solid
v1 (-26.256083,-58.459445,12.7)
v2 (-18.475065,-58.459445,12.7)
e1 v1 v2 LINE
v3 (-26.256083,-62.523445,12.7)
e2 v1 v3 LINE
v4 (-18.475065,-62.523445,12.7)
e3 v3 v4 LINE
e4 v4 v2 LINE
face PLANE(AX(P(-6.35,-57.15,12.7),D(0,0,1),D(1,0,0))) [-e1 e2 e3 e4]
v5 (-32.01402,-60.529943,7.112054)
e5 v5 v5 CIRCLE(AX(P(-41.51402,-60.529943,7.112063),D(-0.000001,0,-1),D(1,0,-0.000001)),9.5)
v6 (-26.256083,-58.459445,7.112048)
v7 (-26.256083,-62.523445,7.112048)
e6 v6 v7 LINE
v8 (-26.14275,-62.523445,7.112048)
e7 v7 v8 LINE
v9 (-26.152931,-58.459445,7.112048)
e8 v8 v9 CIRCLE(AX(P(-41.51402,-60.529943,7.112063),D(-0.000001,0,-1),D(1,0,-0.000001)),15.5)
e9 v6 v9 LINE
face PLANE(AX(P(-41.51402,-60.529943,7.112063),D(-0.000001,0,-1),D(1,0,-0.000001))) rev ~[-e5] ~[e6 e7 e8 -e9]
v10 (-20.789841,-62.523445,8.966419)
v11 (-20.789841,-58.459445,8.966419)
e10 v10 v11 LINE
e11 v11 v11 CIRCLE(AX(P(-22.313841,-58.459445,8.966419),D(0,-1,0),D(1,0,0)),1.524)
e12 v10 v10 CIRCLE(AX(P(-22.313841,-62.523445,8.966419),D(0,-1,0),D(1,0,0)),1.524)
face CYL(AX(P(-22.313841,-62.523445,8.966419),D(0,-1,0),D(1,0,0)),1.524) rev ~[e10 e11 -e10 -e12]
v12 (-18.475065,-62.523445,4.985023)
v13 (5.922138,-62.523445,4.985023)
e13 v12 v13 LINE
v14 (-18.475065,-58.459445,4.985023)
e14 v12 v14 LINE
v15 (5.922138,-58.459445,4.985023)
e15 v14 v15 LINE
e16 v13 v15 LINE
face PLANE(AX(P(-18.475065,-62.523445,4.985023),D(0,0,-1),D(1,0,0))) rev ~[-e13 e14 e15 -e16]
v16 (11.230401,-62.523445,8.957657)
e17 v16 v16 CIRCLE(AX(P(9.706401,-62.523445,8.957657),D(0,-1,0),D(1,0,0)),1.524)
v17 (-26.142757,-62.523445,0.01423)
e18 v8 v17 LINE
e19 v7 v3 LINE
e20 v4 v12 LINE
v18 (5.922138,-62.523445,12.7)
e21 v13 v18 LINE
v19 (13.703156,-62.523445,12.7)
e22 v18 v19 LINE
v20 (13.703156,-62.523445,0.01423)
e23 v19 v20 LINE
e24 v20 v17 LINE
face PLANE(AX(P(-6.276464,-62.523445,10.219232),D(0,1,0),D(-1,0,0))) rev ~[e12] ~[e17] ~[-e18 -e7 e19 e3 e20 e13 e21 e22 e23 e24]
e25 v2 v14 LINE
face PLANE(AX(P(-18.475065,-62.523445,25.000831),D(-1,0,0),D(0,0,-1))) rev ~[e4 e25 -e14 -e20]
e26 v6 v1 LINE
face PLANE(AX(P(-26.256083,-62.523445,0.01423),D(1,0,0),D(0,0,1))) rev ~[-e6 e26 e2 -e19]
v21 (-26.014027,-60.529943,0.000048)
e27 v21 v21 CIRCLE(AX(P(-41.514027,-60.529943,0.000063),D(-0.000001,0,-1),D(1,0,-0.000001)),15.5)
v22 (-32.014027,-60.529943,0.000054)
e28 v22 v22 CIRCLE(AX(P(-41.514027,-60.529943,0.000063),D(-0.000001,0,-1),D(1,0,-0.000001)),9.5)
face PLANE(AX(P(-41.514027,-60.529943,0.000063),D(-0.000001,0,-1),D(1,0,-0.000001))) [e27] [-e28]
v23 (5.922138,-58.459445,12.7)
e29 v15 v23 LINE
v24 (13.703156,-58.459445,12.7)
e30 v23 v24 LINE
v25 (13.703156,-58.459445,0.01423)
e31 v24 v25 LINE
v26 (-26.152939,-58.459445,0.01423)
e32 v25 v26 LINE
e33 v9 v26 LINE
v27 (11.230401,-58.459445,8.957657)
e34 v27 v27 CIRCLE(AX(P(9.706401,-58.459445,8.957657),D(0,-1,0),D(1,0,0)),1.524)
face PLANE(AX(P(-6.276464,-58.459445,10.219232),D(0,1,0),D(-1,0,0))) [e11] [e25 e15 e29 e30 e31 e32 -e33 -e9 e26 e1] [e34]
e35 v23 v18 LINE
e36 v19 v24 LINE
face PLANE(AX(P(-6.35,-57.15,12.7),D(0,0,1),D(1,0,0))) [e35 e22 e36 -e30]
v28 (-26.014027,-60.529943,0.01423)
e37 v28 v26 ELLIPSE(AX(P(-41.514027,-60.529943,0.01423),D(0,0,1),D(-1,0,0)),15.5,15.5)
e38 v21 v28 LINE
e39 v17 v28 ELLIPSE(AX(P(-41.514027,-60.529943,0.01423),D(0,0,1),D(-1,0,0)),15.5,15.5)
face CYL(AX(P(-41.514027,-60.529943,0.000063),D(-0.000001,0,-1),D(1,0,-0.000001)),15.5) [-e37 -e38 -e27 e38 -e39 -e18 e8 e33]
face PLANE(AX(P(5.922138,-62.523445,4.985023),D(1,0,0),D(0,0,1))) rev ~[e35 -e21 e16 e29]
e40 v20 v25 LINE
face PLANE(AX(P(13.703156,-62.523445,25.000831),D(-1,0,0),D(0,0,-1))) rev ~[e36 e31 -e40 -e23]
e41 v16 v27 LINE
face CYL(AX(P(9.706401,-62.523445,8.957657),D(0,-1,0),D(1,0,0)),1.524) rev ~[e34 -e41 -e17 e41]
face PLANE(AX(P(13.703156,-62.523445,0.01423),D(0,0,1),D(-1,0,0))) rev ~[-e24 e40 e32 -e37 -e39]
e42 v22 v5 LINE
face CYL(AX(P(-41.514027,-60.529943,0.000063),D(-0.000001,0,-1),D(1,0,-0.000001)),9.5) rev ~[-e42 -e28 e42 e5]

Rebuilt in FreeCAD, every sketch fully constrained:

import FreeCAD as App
import Part
import Sketcher
Q = App.Units.Quantity

doc = App.newDocument("Part")
params = doc.addObject("Spreadsheet::Sheet", "Params")
for row, (alias, value) in enumerate([
    ("sketch1_width", "2 in"),
    ("sketch1_height", "0.5 in"),
    ("pad1_length", "0.5 in"),
    ("pad2_length", "0.16 in"),
    ("sketch3_diameter", "0.12 in"),
    ("pocket1_length", "0.16 in"),
    ("pad3_length", "0.28 in"),
], start=1):
    params.set(f"A{row}", alias)
    params.set(f"B{row}", "=" + value)
    params.setAlias(f"B{row}", alias)

body = doc.addObject("PartDesign::Body", "Body")

sketch1 = body.newObject("Sketcher::SketchObject", "Sketch")
sketch1.AttachmentSupport = (doc.getObject("XY_Plane"), [""])
sketch1.MapMode = "FlatFace"
sketch1.AttachmentOffset = App.Placement(App.Vector(0, 0, 0.5 * 25.4), App.Rotation())
sketch1.addGeometry(Part.LineSegment(App.Vector(-32, -51, 0), App.Vector(-32, -64, 0)), False)
sketch1.addGeometry(Part.LineSegment(App.Vector(-32, -64, 0), App.Vector(19, -64, 0)), False)
sketch1.addGeometry(Part.LineSegment(App.Vector(19, -64, 0), App.Vector(19, -51, 0)), False)
sketch1.addGeometry(Part.LineSegment(App.Vector(19, -51, 0), App.Vector(-32, -51, 0)), False)
sketch1.addConstraint(Sketcher.Constraint("Coincident", 0, 2, 1, 1))
sketch1.addConstraint(Sketcher.Constraint("Coincident", 1, 2, 2, 1))
sketch1.addConstraint(Sketcher.Constraint("Coincident", 2, 2, 3, 1))
sketch1.addConstraint(Sketcher.Constraint("Coincident", 3, 2, 0, 1))
sketch1.addConstraint(Sketcher.Constraint("Vertical", 0))
sketch1.addConstraint(Sketcher.Constraint("Horizontal", 1))
sketch1.addConstraint(Sketcher.Constraint("Vertical", 2))
sketch1.addConstraint(Sketcher.Constraint("Horizontal", 3))
sketch1.addConstraint(Sketcher.Constraint("DistanceX", 1, 1, 1, 2, Q("2 in")))
sketch1.addConstraint(Sketcher.Constraint("DistanceY", 0, 2, 0, 1, Q("0.5 in")))
sketch1.addConstraint(Sketcher.Constraint("DistanceY", 2, 2, -1, 1, Q("2 in")))
sketch1.addConstraint(Sketcher.Constraint("DistanceX", 0, 2, -1, 1, Q("1.25 in")))
sketch1.setExpression("Constraints[8]", "Params.sketch1_width")
sketch1.setExpression("Constraints[9]", "Params.sketch1_height")
pad1 = body.newObject("PartDesign::Pad", "Pad")
pad1.Profile = sketch1
pad1.setExpression("Length", "Params.pad1_length")
body2 = doc.addObject("PartDesign::Body", "Body001")

sketch2 = body2.newObject("Sketcher::SketchObject", "Sketch001")
sketch2.AttachmentSupport = (doc.getObject("XZ_Plane001"), [""])
sketch2.MapMode = "FlatFace"
sketch2.AttachmentOffset = App.Placement(App.Vector(0, 0, 62.523445), App.Rotation())
sketch2.addGeometry(Part.LineSegment(App.Vector(-26, 25, 0), App.Vector(-26, 0, 0)), False)
sketch2.addGeometry(Part.LineSegment(App.Vector(-26, 0, 0), App.Vector(14, 0, 0)), False)
sketch2.addGeometry(Part.LineSegment(App.Vector(14, 0, 0), App.Vector(14, 25, 0)), False)
sketch2.addGeometry(Part.LineSegment(App.Vector(14, 25, 0), App.Vector(6, 25, 0)), False)
sketch2.addGeometry(Part.LineSegment(App.Vector(6, 25, 0), App.Vector(6, 5, 0)), False)
sketch2.addGeometry(Part.LineSegment(App.Vector(6, 5, 0), App.Vector(-18, 5, 0)), False)
sketch2.addGeometry(Part.LineSegment(App.Vector(-18, 5, 0), App.Vector(-18, 25, 0)), False)
sketch2.addGeometry(Part.LineSegment(App.Vector(-18, 25, 0), App.Vector(-26, 25, 0)), False)
sketch2.addConstraint(Sketcher.Constraint("Coincident", 0, 2, 1, 1))
sketch2.addConstraint(Sketcher.Constraint("Coincident", 1, 2, 2, 1))
sketch2.addConstraint(Sketcher.Constraint("Coincident", 2, 2, 3, 1))
sketch2.addConstraint(Sketcher.Constraint("Coincident", 3, 2, 4, 1))
sketch2.addConstraint(Sketcher.Constraint("Coincident", 4, 2, 5, 1))
sketch2.addConstraint(Sketcher.Constraint("Coincident", 5, 2, 6, 1))
sketch2.addConstraint(Sketcher.Constraint("Coincident", 6, 2, 7, 1))
sketch2.addConstraint(Sketcher.Constraint("Coincident", 7, 2, 0, 1))
sketch2.addConstraint(Sketcher.Constraint("Vertical", 0))
sketch2.addConstraint(Sketcher.Constraint("Horizontal", 1))
sketch2.addConstraint(Sketcher.Constraint("Vertical", 2))
sketch2.addConstraint(Sketcher.Constraint("Horizontal", 3))
sketch2.addConstraint(Sketcher.Constraint("Vertical", 4))
sketch2.addConstraint(Sketcher.Constraint("Horizontal", 5))
sketch2.addConstraint(Sketcher.Constraint("Vertical", 6))
sketch2.addConstraint(Sketcher.Constraint("Horizontal", 7))
sketch2.addConstraint(Sketcher.Constraint("Horizontal", 3, 2, 6, 2))
sketch2.addConstraint(Sketcher.Constraint("Equal", 3, 7))
sketch2.addConstraint(Sketcher.Constraint("DistanceY", 0, 2, 0, 1, Q("24.986601 mm")))
sketch2.addConstraint(Sketcher.Constraint("DistanceX", 1, 1, 1, 2, Q("39.959239 mm")))
sketch2.addConstraint(Sketcher.Constraint("DistanceY", 4, 2, 4, 1, Q("20.015808 mm")))
sketch2.addConstraint(Sketcher.Constraint("DistanceX", 3, 2, 3, 1, Q("7.781018 mm")))
sketch2.addConstraint(Sketcher.Constraint("DistanceY", -1, 1, 0, 2, Q("0.01423 mm")))
sketch2.addConstraint(Sketcher.Constraint("DistanceX", -1, 1, 3, 2, Q("5.922138 mm")))
pad2 = body2.newObject("PartDesign::Pad", "Pad001")
pad2.Profile = sketch2
pad2.setExpression("Length", "Params.pad2_length")
pad2.Reversed = True

sketch3 = body2.newObject("Sketcher::SketchObject", "Sketch002")
sketch3.AttachmentSupport = (doc.getObject("XZ_Plane001"), [""])
sketch3.MapMode = "FlatFace"
sketch3.AttachmentOffset = App.Placement(App.Vector(0, 0, 62.523445), App.Rotation())
sketch3.addGeometry(Part.Circle(App.Vector(-22.3, 9, 0), App.Vector(0, 0, 1), 1.5), False)
sketch3.addGeometry(Part.Circle(App.Vector(9.7, 9, 0), App.Vector(0, 0, 1), 1.5), False)
sketch3.addGeometry(Part.LineSegment(App.Vector(-20.4, 21, 0), App.Vector(-21.2, 22.6, 0)), False)
sketch3.addGeometry(Part.LineSegment(App.Vector(-21.2, 22.6, 0), App.Vector(-22.9, 23, 0)), False)
sketch3.addGeometry(Part.LineSegment(App.Vector(-22.9, 23, 0), App.Vector(-24.3, 21.9, 0)), False)
sketch3.addGeometry(Part.LineSegment(App.Vector(-24.3, 21.9, 0), App.Vector(-24.3, 20.1, 0)), False)
sketch3.addGeometry(Part.LineSegment(App.Vector(-24.3, 20.1, 0), App.Vector(-22.9, 19, 0)), False)
sketch3.addGeometry(Part.LineSegment(App.Vector(-22.9, 19, 0), App.Vector(-21.2, 19.4, 0)), False)
sketch3.addGeometry(Part.LineSegment(App.Vector(-21.2, 19.4, 0), App.Vector(-20.4, 21, 0)), False)
sketch3.addGeometry(Part.LineSegment(App.Vector(11.6, 21, 0), App.Vector(10.8, 22.6, 0)), False)
sketch3.addGeometry(Part.LineSegment(App.Vector(10.8, 22.6, 0), App.Vector(9.1, 23, 0)), False)
sketch3.addGeometry(Part.LineSegment(App.Vector(9.1, 23, 0), App.Vector(7.7, 21.9, 0)), False)
sketch3.addGeometry(Part.LineSegment(App.Vector(7.7, 21.9, 0), App.Vector(7.7, 20.1, 0)), False)
sketch3.addGeometry(Part.LineSegment(App.Vector(7.7, 20.1, 0), App.Vector(9.1, 19, 0)), False)
sketch3.addGeometry(Part.LineSegment(App.Vector(9.1, 19, 0), App.Vector(10.8, 19.4, 0)), False)
sketch3.addGeometry(Part.LineSegment(App.Vector(10.8, 19.4, 0), App.Vector(11.6, 21, 0)), False)
sketch3.addConstraint(Sketcher.Constraint("Coincident", 2, 2, 3, 1))
sketch3.addConstraint(Sketcher.Constraint("Coincident", 3, 2, 4, 1))
sketch3.addConstraint(Sketcher.Constraint("Coincident", 4, 2, 5, 1))
sketch3.addConstraint(Sketcher.Constraint("Coincident", 5, 2, 6, 1))
sketch3.addConstraint(Sketcher.Constraint("Coincident", 6, 2, 7, 1))
sketch3.addConstraint(Sketcher.Constraint("Coincident", 7, 2, 8, 1))
sketch3.addConstraint(Sketcher.Constraint("Coincident", 8, 2, 2, 1))
sketch3.addConstraint(Sketcher.Constraint("Coincident", 9, 2, 10, 1))
sketch3.addConstraint(Sketcher.Constraint("Coincident", 10, 2, 11, 1))
sketch3.addConstraint(Sketcher.Constraint("Coincident", 11, 2, 12, 1))
sketch3.addConstraint(Sketcher.Constraint("Coincident", 12, 2, 13, 1))
sketch3.addConstraint(Sketcher.Constraint("Coincident", 13, 2, 14, 1))
sketch3.addConstraint(Sketcher.Constraint("Coincident", 14, 2, 15, 1))
sketch3.addConstraint(Sketcher.Constraint("Coincident", 15, 2, 9, 1))
sketch3.addConstraint(Sketcher.Constraint("Vertical", 5))
sketch3.addConstraint(Sketcher.Constraint("Vertical", 12))
sketch3.addConstraint(Sketcher.Constraint("Equal", 0, 1))
sketch3.addConstraint(Sketcher.Constraint("Parallel", 2, 9))
sketch3.addConstraint(Sketcher.Constraint("Parallel", 3, 10))
sketch3.addConstraint(Sketcher.Constraint("Parallel", 4, 11))
sketch3.addConstraint(Sketcher.Constraint("Parallel", 6, 13))
sketch3.addConstraint(Sketcher.Constraint("Parallel", 7, 14))
sketch3.addConstraint(Sketcher.Constraint("Parallel", 8, 15))
sketch3.addConstraint(Sketcher.Constraint("Equal", 2, 3))
sketch3.addConstraint(Sketcher.Constraint("Equal", 3, 4))
sketch3.addConstraint(Sketcher.Constraint("Equal", 4, 6))
sketch3.addConstraint(Sketcher.Constraint("Equal", 6, 7))
sketch3.addConstraint(Sketcher.Constraint("Equal", 7, 8))
sketch3.addConstraint(Sketcher.Constraint("Equal", 9, 10))
sketch3.addConstraint(Sketcher.Constraint("Equal", 10, 11))
sketch3.addConstraint(Sketcher.Constraint("Equal", 11, 13))
sketch3.addConstraint(Sketcher.Constraint("Equal", 13, 14))
sketch3.addConstraint(Sketcher.Constraint("Diameter", 0, Q("0.12 in")))
sketch3.addConstraint(Sketcher.Constraint("DistanceY", 1, 3, 10, 2, Q("0.5512998 in")))
sketch3.addConstraint(Sketcher.Constraint("DistanceY", 12, 2, 12, 1, Q("1.758751 mm")))
sketch3.addConstraint(Sketcher.Constraint("DistanceX", -1, 1, 1, 3, Q("9.706401 mm")))
sketch3.addConstraint(Sketcher.Constraint("DistanceY", 0, 3, 3, 2, Q("13.9986 mm")))
sketch3.addConstraint(Sketcher.Constraint("DistanceY", 4, 2, 2, 2, Q("0.697401 mm")))
sketch3.addConstraint(Sketcher.Constraint("Distance", 2, Q("1.754842 mm")))
sketch3.addConstraint(Sketcher.Constraint("Distance", 9, Q("1.75875 mm")))
sketch3.addConstraint(Sketcher.Constraint("DistanceX", 0, 3, -1, 1, Q("22.313841 mm")))
sketch3.addConstraint(Sketcher.Constraint("DistanceY", -1, 1, 0, 3, Q("8.966419 mm")))
sketch3.addConstraint(Sketcher.Constraint("DistanceY", -1, 1, 2, 2, Q("22.588652 mm")))
sketch3.addConstraint(Sketcher.Constraint("DistanceY", -1, 1, 6, 2, Q("19.04623 mm")))
sketch3.addConstraint(Sketcher.Constraint("DistanceY", -1, 1, 8, 2, Q("21.006459 mm")))
sketch3.addConstraint(Sketcher.Constraint("DistanceX", -1, 1, 9, 2, Q("10.823041 mm")))
sketch3.addConstraint(Sketcher.Constraint("DistanceY", -1, 1, 15, 2, Q("20.99775 mm")))
sketch3.addConstraint(Sketcher.Constraint("DistanceX", 2, 2, 1, 3, Q("30.888789 mm")))
sketch3.setExpression("Constraints[32]", "Params.sketch3_diameter")
pocket1 = body2.newObject("PartDesign::Pocket", "Pocket")
pocket1.Profile = sketch3
pocket1.setExpression("Length", "Params.pocket1_length")
body3 = doc.addObject("PartDesign::Body", "Body002")

sketch4 = body3.newObject("Sketcher::SketchObject", "Sketch003")
sketch4.AttachmentSupport = (doc.getObject("XY_Plane002"), [""])
sketch4.MapMode = "FlatFace"
sketch4.AttachmentOffset = App.Placement(App.Vector(0, 0, 0.000026), App.Rotation())
sketch4.addGeometry(Part.Circle(App.Vector(-42, -61, 0), App.Vector(0, 0, 1), 16), False)
sketch4.addGeometry(Part.Circle(App.Vector(-42, -61, 0), App.Vector(0, 0, 1), 10), False)
sketch4.addConstraint(Sketcher.Constraint("Coincident", 1, 3, 0, 3))
sketch4.addConstraint(Sketcher.Constraint("Diameter", 0, Q("31 mm")))
sketch4.addConstraint(Sketcher.Constraint("Diameter", 1, Q("19 mm")))
sketch4.addConstraint(Sketcher.Constraint("DistanceX", 0, 3, -1, 1, Q("41.514027 mm")))
sketch4.addConstraint(Sketcher.Constraint("DistanceY", 0, 3, -1, 1, Q("60.529943 mm")))
pad3 = body3.newObject("PartDesign::Pad", "Pad002")
pad3.Profile = sketch4
pad3.setExpression("Length", "Params.pad3_length")
doc.recompute()

boolean = body3.newObject("PartDesign::Boolean", "Boolean")
boolean.Type = "Fuse"
boolean.addObjects([body2])
doc.recompute()

boolean2 = body3.newObject("PartDesign::Boolean", "Boolean001")
boolean2.Type = "Cut"
boolean2.addObjects([body])

doc.recompute()
